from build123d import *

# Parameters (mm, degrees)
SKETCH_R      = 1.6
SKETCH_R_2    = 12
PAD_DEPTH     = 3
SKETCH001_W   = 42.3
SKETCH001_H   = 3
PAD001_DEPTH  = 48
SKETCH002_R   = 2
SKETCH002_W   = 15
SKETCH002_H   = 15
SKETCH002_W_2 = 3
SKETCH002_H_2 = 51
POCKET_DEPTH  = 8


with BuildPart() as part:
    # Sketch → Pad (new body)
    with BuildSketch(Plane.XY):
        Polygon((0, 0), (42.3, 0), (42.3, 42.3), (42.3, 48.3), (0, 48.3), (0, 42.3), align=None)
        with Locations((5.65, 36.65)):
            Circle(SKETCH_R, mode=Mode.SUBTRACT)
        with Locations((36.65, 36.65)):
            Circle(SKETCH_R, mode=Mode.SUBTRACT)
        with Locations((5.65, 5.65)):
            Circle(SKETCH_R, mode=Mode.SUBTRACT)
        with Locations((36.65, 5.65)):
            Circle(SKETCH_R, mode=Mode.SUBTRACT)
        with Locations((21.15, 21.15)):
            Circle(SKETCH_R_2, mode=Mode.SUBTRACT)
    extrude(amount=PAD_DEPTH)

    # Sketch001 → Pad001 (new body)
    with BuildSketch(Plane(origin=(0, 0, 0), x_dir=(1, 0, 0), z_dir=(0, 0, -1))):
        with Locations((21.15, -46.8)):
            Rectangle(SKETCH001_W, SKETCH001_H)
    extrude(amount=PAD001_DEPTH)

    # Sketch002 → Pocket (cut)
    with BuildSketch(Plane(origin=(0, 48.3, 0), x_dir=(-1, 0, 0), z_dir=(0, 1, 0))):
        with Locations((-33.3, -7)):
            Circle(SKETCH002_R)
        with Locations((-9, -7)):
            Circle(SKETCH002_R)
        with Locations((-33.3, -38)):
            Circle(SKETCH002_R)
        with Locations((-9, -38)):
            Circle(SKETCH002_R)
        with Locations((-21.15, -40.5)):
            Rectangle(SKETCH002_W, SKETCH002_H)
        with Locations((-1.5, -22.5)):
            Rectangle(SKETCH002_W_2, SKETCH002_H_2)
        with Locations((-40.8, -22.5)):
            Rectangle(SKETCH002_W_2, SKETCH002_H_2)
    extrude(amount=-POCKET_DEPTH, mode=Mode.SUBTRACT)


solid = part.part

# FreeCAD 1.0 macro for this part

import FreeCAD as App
import Part
import Sketcher

V = App.Vector
Q = App.Units.Quantity

doc = App.newDocument("Part")
body = doc.addObject("PartDesign::Body", "Body")

# Sketch on XY plane
sketch1 = doc.addObject("Sketcher::SketchObject", "Sketch")
body.addObject(sketch1)
sketch1.AttachmentSupport = (doc.XY_Plane, [""])
sketch1.MapMode = "FlatFace"
sketch1.addGeometry([
    Part.LineSegment(V(0, 0, 0), V(42.3, 0, 0)),  # 0
    Part.LineSegment(V(42.3, 0, 0), V(42.3, 48.3, 0)),  # 1
    Part.LineSegment(V(42.3, 48.3, 0), V(0, 48.3, 0)),  # 2
    Part.LineSegment(V(0, 48.3, 0), V(0, 0, 0)),  # 3
    Part.Circle(V(5.7, 5.7, 0), V(0, 0, 1), 1.6),  # 4
    Part.Circle(V(21.1, 21.1, 0), V(0, 0, 1), 12),  # 5
    Part.Circle(V(36.6, 5.7, 0), V(0, 0, 1), 1.6),  # 6
    Part.Circle(V(5.7, 36.6, 0), V(0, 0, 1), 1.6),  # 7
    Part.Circle(V(36.6, 36.6, 0), V(0, 0, 1), 1.6),  # 8
], False)
sketch1.addConstraint([
    Sketcher.Constraint("Coincident", 0, 2, 1, 1),
    Sketcher.Constraint("Coincident", 1, 2, 2, 1),
    Sketcher.Constraint("Coincident", 2, 2, 3, 1),
    Sketcher.Constraint("Coincident", 3, 2, 0, 1),
    Sketcher.Constraint("Horizontal", 0),
    Sketcher.Constraint("Vertical", 1),
    Sketcher.Constraint("Horizontal", 2),
    Sketcher.Constraint("Vertical", 3),
    Sketcher.Constraint("Coincident", 3, 2, -1, 1),
    Sketcher.Constraint("Equal", 4, 6),
    Sketcher.Constraint("Equal", 6, 7),
    Sketcher.Constraint("Equal", 7, 8),
    Sketcher.Constraint("Horizontal", 4, 3, 6, 3),
    Sketcher.Constraint("Horizontal", 7, 3, 8, 3),
    Sketcher.Constraint("Vertical", 4, 3, 7, 3),
    Sketcher.Constraint("Vertical", 6, 3, 8, 3),
    Sketcher.Constraint("Diameter", 5, Q("24 mm")),
    Sketcher.Constraint("Diameter", 4, Q("3.2 mm")),
    Sketcher.Constraint("DistanceX", 0, 1, 0, 2, Q("42.3 mm")),
    Sketcher.Constraint("DistanceY", 1, 1, 1, 2, Q("48.3 mm")),
    Sketcher.Constraint("DistanceX", 4, 3, 6, 3, Q("31 mm")),
    Sketcher.Constraint("DistanceY", 4, 3, 7, 3, Q("31 mm")),
    Sketcher.Constraint("DistanceX", 4, 3, 5, 3, Q("15.5 mm")),
    Sketcher.Constraint("DistanceY", 4, 3, 5, 3, Q("15.5 mm")),
    Sketcher.Constraint("DistanceX", -1, 1, 4, 3, Q("5.65 mm")),
    Sketcher.Constraint("DistanceY", -1, 1, 4, 3, Q("5.65 mm")),
])
pad1 = doc.addObject("PartDesign::Pad", "Pad")
body.addObject(pad1)
pad1.Profile = sketch1
pad1.Length = 3

# Sketch on XY plane
sketch2 = doc.addObject("Sketcher::SketchObject", "Sketch001")
body.addObject(sketch2)
sketch2.AttachmentSupport = (doc.XY_Plane, [""])
sketch2.MapMode = "FlatFace"
sketch2.addGeometry([
    Part.LineSegment(V(0, 45.3, 0), V(0, 48.3, 0)),
    Part.LineSegment(V(0, 48.3, 0), V(42.3, 48.3, 0)),
    Part.LineSegment(V(42.3, 48.3, 0), V(42.3, 45.3, 0)),
    Part.LineSegment(V(42.3, 45.3, 0), V(0, 45.3, 0)),
], False)
sketch2.addConstraint([
    Sketcher.Constraint("Coincident", 0, 2, 1, 1),
    Sketcher.Constraint("Coincident", 1, 2, 2, 1),
    Sketcher.Constraint("Coincident", 2, 2, 3, 1),
    Sketcher.Constraint("Coincident", 3, 2, 0, 1),
    Sketcher.Constraint("Vertical", 0),
    Sketcher.Constraint("Horizontal", 1),
    Sketcher.Constraint("Vertical", 2),
    Sketcher.Constraint("Horizontal", 3),
    Sketcher.Constraint("PointOnObject", 0, 2, -2),
    Sketcher.Constraint("DistanceY", 0, 1, 0, 2, Q("3 mm")),
    Sketcher.Constraint("DistanceX", 1, 1, 1, 2, Q("42.3 mm")),
    Sketcher.Constraint("DistanceY", -1, 1, 0, 2, Q("48.3 mm")),
])
pad2 = doc.addObject("PartDesign::Pad", "Pad001")
body.addObject(pad2)
pad2.Profile = sketch2
pad2.Length = 48
pad2.Reversed = True

# Sketch on XZ plane
sketch3 = doc.addObject("Sketcher::SketchObject", "Sketch002")
body.addObject(sketch3)
sketch3.AttachmentSupport = (doc.XZ_Plane, [""])
sketch3.MapMode = "FlatFace"
sketch3.AttachmentOffset = App.Placement(V(0, 0, -48.3), App.Rotation())
sketch3.addGeometry([
    Part.Circle(V(33.3, -7, 0), V(0, 0, 1), 2),  # 0
    Part.Circle(V(9, -7, 0), V(0, 0, 1), 2),  # 1
    Part.Circle(V(33.3, -38, 0), V(0, 0, 1), 2),  # 2
    Part.Circle(V(9, -38, 0), V(0, 0, 1), 2),  # 3
    Part.LineSegment(V(28.6, -33, 0), V(28.6, -48, 0)),  # 4
    Part.LineSegment(V(28.6, -48, 0), V(13.7, -48, 0)),  # 5
    Part.LineSegment(V(13.7, -48, 0), V(13.7, -33, 0)),  # 6
    Part.LineSegment(V(13.7, -33, 0), V(28.6, -33, 0)),  # 7
    Part.LineSegment(V(3, 3, 0), V(3, -48, 0)),  # 8
    Part.LineSegment(V(3, -48, 0), V(0, -48, 0)),  # 9
    Part.LineSegment(V(0, -48, 0), V(0, 3, 0)),  # 10
    Part.LineSegment(V(0, 3, 0), V(3, 3, 0)),  # 11
    Part.LineSegment(V(42.3, 3, 0), V(42.3, -48, 0)),  # 12
    Part.LineSegment(V(42.3, -48, 0), V(39.3, -48, 0)),  # 13
    Part.LineSegment(V(39.3, -48, 0), V(39.3, 3, 0)),  # 14
    Part.LineSegment(V(39.3, 3, 0), V(42.3, 3, 0)),  # 15
], False)
sketch3.addConstraint([
    Sketcher.Constraint("Coincident", 4, 2, 5, 1),
    Sketcher.Constraint("Coincident", 5, 2, 6, 1),
    Sketcher.Constraint("Coincident", 6, 2, 7, 1),
    Sketcher.Constraint("Coincident", 7, 2, 4, 1),
    Sketcher.Constraint("Coincident", 8, 2, 9, 1),
    Sketcher.Constraint("Coincident", 9, 2, 10, 1),
    Sketcher.Constraint("Coincident", 10, 2, 11, 1),
    Sketcher.Constraint("Coincident", 11, 2, 8, 1),
    Sketcher.Constraint("Coincident", 12, 2, 13, 1),
    Sketcher.Constraint("Coincident", 13, 2, 14, 1),
    Sketcher.Constraint("Coincident", 14, 2, 15, 1),
    Sketcher.Constraint("Coincident", 15, 2, 12, 1),
    Sketcher.Constraint("Vertical", 4),
    Sketcher.Constraint("Horizontal", 5),
    Sketcher.Constraint("Vertical", 6),
    Sketcher.Constraint("Horizontal", 7),
    Sketcher.Constraint("Vertical", 8),
    Sketcher.Constraint("Horizontal", 9),
    Sketcher.Constraint("Vertical", 10),
    Sketcher.Constraint("Horizontal", 11),
    Sketcher.Constraint("Vertical", 12),
    Sketcher.Constraint("Horizontal", 13),
    Sketcher.Constraint("Vertical", 14),
    Sketcher.Constraint("Horizontal", 15),
    Sketcher.Constraint("Equal", 0, 1),
    Sketcher.Constraint("Equal", 1, 2),
    Sketcher.Constraint("Equal", 2, 3),
    Sketcher.Constraint("PointOnObject", 9, 2, -2),
    Sketcher.Constraint("Horizontal", 0, 3, 1, 3),
    Sketcher.Constraint("Horizontal", 2, 3, 3, 3),
    Sketcher.Constraint("Horizontal", 5, 2, 8, 2),
    Sketcher.Constraint("Horizontal", 9, 2, 12, 2),
    Sketcher.Constraint("Horizontal", 11, 2, 14, 2),
    Sketcher.Constraint("Vertical", 0, 3, 2, 3),
    Sketcher.Constraint("Vertical", 1, 3, 3, 3),
    Sketcher.Constraint("Equal", 11, 13),
    Sketcher.Constraint("Equal", 7, 4),
    Sketcher.Constraint("Diameter", 0, Q("4 mm")),
    Sketcher.Constraint("DistanceX", 5, 2, 5, 1, Q("15 mm")),
    Sketcher.Constraint("DistanceX", 9, 2, 9, 1, Q("3 mm")),
    Sketcher.Constraint("DistanceY", 8, 2, 8, 1, Q("51 mm")),
    Sketcher.Constraint("DistanceY", 0, 3, -1, 1, Q("7 mm")),
    Sketcher.Constraint("DistanceX", -1, 1, 1, 3, Q("9 mm")),
    Sketcher.Constraint("DistanceY", 2, 3, -1, 1, Q("38 mm")),
    Sketcher.Constraint("DistanceY", 4, 2, -1, 1, Q("48 mm")),
    Sketcher.Constraint("DistanceX", 2, 3, 12, 2, Q("9 mm")),
    Sketcher.Constraint("DistanceX", -1, 1, 0, 3, Q("33.3 mm")),
    Sketcher.Constraint("DistanceX", -1, 1, 4, 2, Q("28.65 mm")),
])
pocket1 = doc.addObject("PartDesign::Pocket", "Pocket")
body.addObject(pocket1)
pocket1.Profile = sketch3
pocket1.Length = 8
pocket1.Reversed = True

doc.recompute()
